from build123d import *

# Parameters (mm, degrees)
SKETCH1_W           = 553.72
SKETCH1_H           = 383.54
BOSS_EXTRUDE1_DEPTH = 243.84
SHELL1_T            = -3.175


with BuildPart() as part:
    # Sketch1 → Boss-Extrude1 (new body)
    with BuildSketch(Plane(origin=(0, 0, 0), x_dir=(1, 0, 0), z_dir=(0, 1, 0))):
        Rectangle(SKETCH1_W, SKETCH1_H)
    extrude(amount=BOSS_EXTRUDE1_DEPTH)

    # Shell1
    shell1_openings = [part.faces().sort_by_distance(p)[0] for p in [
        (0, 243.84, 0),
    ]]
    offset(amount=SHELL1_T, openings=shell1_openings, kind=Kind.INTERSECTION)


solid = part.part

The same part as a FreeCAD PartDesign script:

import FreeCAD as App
import Part
import Sketcher
from FreeCAD import Vector
Q = App.Units.Quantity


def faces_at(feature, points):
    """Names of the faces that lie closest to the given points."""
    faces = feature.Shape.Faces
    near = lambda p: min(range(len(faces)), key=lambda i: faces[i].distToShape(Part.Vertex(*p))[0])
    return sorted({f"Face{near(p) + 1}" for p in points})


def add_polygon(sketch, points):
    """Adds a closed chain of lines whose ends are joined by coincident constraints."""
    first, n = sketch.GeometryCount, len(points)
    for a, b in zip(points, points[1:] + points[:1]):
        sketch.addGeometry(Part.LineSegment(App.Vector(*a, 0), App.Vector(*b, 0)), False)
    for i in range(n):
        sketch.addConstraint(Sketcher.Constraint("Coincident", first + i, 2, first + (i + 1) % n, 1))

doc = App.newDocument("Part")
body = doc.addObject("PartDesign::Body", "Body")

sketch1 = body.newObject("Sketcher::SketchObject", "Sketch")
sketch1.AttachmentSupport = (doc.getObject("XZ_Plane"), [""])
sketch1.MapMode = "FlatFace"
add_polygon(sketch1, [(-277, -192), (-277, 192), (277, 192), (277, -192)])
sketch1.addConstraint(Sketcher.Constraint("Vertical", 0))
sketch1.addConstraint(Sketcher.Constraint("Horizontal", 1))
sketch1.addConstraint(Sketcher.Constraint("Vertical", 2))
sketch1.addConstraint(Sketcher.Constraint("Horizontal", 3))
sketch1.addConstraint(Sketcher.Constraint("Symmetric", 0, 2, 2, 2, -1, 1))
sketch1.addConstraint(Sketcher.Constraint("DistanceX", 1, 1, 1, 2, Q("21.8 in")))
sketch1.addConstraint(Sketcher.Constraint("DistanceY", 0, 1, 0, 2, Q("15.1 in")))
pad1 = body.newObject("PartDesign::Pad", "Pad")
pad1.Profile = sketch1
pad1.Length = Q("9.6 in")
pad1.Reversed = True
doc.recompute()

thickness = body.newObject("PartDesign::Thickness", "Thickness")
thickness.Base = (pad1, faces_at(pad1, [(0, 243.84, 0)]))
thickness.Value = Q("0.125 in")
thickness.Reversed = True
thickness.Join = "Intersection"

doc.recompute()
